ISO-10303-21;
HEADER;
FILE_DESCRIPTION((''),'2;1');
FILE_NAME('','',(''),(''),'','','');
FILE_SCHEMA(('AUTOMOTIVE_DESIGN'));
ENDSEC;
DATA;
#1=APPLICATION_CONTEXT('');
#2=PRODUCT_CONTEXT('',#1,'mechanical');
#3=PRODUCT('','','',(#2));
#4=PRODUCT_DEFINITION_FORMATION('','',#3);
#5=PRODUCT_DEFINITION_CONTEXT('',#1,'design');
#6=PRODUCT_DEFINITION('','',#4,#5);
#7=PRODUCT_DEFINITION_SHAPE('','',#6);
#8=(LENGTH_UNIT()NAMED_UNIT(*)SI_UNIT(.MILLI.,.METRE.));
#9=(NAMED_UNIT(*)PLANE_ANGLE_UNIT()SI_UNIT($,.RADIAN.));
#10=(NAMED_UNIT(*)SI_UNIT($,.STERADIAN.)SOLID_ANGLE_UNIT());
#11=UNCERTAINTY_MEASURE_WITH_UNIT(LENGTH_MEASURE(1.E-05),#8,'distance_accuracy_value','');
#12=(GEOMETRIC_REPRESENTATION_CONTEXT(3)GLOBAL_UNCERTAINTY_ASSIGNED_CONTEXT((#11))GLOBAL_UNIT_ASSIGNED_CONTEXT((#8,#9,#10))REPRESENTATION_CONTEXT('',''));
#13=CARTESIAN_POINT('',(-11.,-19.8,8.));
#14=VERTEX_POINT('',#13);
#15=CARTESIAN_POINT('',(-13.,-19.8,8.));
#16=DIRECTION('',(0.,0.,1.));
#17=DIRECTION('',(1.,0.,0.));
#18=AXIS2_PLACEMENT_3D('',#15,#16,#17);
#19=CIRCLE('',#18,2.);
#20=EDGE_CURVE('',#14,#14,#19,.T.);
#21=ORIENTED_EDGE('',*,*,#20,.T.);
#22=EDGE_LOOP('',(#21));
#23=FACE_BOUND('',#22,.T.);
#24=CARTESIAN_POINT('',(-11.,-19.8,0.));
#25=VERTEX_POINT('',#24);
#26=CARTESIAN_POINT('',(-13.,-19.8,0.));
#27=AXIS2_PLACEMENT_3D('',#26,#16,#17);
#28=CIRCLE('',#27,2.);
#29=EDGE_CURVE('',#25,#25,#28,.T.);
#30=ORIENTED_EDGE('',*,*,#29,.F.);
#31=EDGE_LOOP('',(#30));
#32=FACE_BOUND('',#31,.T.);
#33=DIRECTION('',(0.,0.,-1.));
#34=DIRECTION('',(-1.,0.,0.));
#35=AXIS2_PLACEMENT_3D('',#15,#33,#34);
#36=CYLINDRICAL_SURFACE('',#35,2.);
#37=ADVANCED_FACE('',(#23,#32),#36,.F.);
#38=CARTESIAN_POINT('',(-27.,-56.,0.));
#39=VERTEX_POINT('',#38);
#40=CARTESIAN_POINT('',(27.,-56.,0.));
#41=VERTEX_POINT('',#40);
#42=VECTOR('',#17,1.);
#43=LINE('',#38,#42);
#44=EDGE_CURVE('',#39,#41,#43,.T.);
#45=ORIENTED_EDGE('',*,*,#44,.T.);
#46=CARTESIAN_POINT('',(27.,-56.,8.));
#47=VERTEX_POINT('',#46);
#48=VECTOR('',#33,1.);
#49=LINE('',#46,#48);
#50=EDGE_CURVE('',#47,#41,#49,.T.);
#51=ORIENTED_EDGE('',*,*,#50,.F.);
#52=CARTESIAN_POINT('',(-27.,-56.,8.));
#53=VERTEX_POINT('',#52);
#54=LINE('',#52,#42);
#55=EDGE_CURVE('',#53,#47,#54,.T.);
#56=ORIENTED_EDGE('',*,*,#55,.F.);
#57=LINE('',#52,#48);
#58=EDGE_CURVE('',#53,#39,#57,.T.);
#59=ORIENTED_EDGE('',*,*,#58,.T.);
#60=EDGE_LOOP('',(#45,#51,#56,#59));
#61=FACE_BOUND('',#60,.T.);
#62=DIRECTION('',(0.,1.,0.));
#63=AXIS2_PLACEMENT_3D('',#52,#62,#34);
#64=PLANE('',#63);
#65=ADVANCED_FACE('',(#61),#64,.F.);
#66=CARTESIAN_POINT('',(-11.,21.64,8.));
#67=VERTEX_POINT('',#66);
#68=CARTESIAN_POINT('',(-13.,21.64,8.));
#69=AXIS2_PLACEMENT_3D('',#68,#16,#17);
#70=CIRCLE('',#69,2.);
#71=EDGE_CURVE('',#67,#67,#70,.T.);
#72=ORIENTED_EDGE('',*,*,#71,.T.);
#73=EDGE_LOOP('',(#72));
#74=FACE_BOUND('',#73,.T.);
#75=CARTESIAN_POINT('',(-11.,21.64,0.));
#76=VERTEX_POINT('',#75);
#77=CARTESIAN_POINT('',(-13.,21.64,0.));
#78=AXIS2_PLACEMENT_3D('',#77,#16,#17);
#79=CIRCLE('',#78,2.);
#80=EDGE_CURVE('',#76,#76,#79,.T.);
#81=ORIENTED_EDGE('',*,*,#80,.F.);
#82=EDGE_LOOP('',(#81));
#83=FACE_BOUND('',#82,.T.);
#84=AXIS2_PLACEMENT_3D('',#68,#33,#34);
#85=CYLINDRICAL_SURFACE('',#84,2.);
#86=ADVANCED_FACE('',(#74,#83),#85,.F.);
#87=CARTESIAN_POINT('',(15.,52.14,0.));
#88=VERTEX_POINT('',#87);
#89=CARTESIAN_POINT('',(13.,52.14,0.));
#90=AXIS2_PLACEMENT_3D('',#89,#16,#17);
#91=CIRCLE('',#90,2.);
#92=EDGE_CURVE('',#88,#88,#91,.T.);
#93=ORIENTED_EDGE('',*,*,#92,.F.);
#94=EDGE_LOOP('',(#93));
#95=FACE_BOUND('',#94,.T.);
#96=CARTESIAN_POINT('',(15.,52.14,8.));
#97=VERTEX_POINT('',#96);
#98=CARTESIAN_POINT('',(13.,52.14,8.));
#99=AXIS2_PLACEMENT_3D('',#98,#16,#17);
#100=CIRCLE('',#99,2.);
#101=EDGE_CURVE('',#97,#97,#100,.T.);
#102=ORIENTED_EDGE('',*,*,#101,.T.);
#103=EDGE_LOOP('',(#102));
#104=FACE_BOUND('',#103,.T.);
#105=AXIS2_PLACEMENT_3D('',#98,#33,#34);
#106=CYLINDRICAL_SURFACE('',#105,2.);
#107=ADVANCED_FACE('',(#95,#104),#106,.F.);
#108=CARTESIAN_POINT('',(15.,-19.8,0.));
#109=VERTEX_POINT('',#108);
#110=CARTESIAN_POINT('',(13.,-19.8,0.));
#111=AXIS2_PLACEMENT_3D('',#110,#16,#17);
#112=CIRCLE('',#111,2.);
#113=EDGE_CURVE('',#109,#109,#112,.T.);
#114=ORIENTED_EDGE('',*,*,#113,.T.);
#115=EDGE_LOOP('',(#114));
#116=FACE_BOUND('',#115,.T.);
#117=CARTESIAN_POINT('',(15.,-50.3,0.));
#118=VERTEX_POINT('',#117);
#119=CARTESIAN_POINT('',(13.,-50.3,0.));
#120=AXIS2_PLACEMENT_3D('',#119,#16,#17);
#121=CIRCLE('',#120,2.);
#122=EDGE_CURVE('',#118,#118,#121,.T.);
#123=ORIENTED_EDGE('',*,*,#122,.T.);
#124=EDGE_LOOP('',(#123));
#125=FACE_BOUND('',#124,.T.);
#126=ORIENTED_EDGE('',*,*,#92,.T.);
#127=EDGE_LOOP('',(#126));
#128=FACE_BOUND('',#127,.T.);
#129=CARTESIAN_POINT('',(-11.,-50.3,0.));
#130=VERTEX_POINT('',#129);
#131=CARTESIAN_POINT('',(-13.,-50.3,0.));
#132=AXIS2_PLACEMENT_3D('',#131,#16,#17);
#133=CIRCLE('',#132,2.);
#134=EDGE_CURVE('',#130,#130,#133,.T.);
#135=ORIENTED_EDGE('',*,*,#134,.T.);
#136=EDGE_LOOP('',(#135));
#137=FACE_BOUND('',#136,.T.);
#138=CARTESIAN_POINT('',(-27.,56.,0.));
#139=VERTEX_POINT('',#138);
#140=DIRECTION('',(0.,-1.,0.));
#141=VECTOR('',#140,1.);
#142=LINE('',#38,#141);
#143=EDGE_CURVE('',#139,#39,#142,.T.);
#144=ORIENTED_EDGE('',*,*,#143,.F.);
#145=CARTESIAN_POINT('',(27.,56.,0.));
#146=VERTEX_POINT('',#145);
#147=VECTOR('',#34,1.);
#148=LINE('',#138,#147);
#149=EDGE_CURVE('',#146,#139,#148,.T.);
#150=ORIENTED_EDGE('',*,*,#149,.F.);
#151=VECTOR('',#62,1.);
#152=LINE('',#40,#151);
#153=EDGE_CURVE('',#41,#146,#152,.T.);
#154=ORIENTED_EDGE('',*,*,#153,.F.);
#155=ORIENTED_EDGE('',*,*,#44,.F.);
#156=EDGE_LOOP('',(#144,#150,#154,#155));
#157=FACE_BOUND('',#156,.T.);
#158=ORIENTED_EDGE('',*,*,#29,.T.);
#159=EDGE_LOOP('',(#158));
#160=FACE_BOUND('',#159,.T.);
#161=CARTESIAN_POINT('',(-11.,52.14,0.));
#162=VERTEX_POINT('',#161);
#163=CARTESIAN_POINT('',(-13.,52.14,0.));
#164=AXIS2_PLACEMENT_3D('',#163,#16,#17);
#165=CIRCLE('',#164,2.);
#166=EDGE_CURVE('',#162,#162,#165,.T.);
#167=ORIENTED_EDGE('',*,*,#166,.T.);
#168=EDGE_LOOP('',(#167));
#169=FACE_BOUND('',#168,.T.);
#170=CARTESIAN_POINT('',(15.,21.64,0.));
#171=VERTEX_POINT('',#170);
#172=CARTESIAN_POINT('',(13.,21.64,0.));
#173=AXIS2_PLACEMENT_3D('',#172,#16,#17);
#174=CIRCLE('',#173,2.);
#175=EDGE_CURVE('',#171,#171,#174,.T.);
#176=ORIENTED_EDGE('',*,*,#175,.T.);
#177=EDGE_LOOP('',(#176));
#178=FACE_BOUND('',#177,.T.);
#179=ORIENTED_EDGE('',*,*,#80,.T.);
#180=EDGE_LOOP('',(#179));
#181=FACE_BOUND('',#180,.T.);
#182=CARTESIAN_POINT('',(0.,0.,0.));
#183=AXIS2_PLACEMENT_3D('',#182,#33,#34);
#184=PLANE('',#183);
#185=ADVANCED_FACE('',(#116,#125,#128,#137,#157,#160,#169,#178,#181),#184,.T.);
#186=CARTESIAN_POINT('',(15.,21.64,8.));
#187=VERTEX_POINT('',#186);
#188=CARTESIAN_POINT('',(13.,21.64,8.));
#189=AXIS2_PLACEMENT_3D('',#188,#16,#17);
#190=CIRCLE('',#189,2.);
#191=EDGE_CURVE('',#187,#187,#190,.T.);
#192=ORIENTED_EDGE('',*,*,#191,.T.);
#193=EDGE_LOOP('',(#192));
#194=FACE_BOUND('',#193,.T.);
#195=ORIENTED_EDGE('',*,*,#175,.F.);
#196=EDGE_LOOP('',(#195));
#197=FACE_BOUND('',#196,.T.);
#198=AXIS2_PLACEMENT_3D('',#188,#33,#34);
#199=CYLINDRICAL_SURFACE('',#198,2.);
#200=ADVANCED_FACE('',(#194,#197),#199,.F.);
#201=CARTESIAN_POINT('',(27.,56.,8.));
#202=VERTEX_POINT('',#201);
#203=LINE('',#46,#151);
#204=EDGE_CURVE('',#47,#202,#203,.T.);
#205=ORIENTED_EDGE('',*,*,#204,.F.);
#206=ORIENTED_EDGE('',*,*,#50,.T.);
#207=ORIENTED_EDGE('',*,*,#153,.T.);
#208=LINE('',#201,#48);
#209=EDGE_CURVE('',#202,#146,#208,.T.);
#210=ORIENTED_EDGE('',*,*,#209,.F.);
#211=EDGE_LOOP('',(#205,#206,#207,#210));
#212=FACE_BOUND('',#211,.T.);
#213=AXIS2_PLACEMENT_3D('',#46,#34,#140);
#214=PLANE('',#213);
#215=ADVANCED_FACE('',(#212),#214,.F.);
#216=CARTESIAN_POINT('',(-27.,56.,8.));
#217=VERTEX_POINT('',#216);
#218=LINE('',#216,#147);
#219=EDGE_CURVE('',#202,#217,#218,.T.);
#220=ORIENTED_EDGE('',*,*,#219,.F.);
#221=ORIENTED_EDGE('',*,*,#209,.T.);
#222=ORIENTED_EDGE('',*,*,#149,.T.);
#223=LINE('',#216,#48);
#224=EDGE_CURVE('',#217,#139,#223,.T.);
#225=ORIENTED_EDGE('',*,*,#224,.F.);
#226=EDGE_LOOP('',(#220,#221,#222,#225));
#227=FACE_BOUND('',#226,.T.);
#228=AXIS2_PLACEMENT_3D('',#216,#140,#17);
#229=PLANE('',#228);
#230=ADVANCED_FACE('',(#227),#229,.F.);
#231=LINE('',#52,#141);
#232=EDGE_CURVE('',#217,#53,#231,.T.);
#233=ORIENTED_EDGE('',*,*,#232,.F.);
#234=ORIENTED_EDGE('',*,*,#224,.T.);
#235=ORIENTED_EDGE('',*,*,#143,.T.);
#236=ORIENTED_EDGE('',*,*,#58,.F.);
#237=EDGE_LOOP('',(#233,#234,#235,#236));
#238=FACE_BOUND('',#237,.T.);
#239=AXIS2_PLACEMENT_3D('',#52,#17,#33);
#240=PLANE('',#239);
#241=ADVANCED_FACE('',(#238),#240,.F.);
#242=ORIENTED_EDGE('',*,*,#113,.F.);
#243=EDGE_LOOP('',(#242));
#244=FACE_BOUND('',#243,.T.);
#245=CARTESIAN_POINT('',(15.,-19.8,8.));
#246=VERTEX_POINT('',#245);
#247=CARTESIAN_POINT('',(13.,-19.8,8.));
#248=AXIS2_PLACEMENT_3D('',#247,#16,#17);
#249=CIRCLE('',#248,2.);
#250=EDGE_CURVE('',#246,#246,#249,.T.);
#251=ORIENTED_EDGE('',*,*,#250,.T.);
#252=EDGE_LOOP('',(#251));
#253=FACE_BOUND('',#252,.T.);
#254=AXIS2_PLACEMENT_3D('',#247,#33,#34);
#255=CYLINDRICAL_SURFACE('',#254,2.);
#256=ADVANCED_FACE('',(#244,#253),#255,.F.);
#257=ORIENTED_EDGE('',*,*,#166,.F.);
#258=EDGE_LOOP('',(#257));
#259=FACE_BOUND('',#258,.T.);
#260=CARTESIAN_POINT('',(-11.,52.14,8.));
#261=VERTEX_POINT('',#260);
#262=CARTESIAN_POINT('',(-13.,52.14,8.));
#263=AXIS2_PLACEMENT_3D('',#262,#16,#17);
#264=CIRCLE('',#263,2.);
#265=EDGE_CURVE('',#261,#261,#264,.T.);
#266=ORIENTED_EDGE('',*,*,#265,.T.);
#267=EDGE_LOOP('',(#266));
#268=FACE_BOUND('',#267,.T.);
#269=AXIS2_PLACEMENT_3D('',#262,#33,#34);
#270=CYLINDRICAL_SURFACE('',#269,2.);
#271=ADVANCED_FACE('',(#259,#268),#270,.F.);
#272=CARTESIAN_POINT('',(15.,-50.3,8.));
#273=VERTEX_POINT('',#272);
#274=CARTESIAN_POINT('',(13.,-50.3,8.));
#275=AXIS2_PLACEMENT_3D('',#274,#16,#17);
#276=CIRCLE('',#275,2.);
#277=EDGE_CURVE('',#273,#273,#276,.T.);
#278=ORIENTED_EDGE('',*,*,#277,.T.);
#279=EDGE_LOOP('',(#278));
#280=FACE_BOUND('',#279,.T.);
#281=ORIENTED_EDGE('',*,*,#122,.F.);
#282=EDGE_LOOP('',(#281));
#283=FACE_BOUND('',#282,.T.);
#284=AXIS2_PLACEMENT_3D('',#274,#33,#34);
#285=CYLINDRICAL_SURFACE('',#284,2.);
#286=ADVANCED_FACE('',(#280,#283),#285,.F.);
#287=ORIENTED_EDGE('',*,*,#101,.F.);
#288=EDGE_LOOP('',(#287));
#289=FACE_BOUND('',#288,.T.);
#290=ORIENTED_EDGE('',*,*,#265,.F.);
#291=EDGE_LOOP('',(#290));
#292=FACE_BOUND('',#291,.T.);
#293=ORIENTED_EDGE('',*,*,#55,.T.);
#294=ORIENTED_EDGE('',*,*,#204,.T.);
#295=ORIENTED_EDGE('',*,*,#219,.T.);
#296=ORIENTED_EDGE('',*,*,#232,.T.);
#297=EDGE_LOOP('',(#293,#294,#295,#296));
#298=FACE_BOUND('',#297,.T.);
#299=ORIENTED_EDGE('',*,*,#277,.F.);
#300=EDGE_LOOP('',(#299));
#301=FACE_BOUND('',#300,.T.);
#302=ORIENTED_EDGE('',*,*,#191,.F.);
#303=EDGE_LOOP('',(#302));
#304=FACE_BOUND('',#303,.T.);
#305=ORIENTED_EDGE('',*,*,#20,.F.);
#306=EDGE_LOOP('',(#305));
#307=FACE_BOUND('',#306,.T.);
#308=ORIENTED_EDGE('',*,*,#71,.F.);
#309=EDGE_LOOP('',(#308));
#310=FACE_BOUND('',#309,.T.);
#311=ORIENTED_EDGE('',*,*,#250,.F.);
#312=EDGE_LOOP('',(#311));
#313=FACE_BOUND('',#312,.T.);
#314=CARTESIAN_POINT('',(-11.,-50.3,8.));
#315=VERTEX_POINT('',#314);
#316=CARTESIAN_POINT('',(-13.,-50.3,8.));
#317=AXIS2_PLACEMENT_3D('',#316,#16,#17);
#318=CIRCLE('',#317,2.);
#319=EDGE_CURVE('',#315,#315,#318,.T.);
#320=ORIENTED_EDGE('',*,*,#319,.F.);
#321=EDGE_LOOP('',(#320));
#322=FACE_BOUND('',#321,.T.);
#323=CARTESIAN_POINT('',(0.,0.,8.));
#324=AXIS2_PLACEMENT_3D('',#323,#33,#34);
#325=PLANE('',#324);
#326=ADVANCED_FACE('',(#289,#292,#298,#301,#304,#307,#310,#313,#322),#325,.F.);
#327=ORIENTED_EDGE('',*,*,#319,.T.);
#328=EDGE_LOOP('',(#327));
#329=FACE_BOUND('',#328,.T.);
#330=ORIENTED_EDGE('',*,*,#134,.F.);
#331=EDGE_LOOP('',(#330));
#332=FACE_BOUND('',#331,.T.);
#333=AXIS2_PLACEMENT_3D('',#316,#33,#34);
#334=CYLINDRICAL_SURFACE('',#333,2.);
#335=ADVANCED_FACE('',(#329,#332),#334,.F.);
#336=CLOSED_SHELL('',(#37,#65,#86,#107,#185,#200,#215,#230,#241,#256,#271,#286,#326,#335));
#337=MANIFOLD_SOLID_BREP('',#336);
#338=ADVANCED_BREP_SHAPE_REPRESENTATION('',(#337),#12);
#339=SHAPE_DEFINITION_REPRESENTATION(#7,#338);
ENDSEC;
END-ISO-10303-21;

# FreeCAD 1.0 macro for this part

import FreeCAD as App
import Part
import Sketcher

V = App.Vector


def add_polygon(sketch, points):
    """Adds a closed chain of lines whose ends are joined by coincident constraints."""
    first, n = sketch.GeometryCount, len(points)
    for a, b in zip(points, points[1:] + points[:1]):
        sketch.addGeometry(Part.LineSegment(App.Vector(*a, 0), App.Vector(*b, 0)), False)
    for i in range(n):
        sketch.addConstraint(Sketcher.Constraint("Coincident", first + i, 2, first + (i + 1) % n, 1))

doc = App.newDocument("Part")
params = doc.addObject("Spreadsheet::Sheet", "Params")
for row, (alias, value) in enumerate([
    ("sketch1_diameter", "4 mm"),
    ("sketch1_width", "54 mm"),
    ("sketch1_height", "112 mm"),
    ("pad1_length", "8 mm"),
], start=1):
    params.set(f"A{row}", alias)
    params.set(f"B{row}", "=" + value)
    params.setAlias(f"B{row}", alias)

body = doc.addObject("PartDesign::Body", "Body")

sketch1 = body.newObject("Sketcher::SketchObject", "Sketch")
sketch1.AttachmentSupport = (doc.getObject("XY_Plane"), [""])
sketch1.MapMode = "FlatFace"
add_polygon(sketch1, [(-27, 56), (-27, -56), (27, -56), (27, 56)])
sketch1.addGeometry(Part.Circle(V(-13, -50.3, 0), V(0, 0, 1), 2), False)
sketch1.addGeometry(Part.Circle(V(-13, -19.8, 0), V(0, 0, 1), 2), False)
sketch1.addGeometry(Part.Circle(V(13, -50.3, 0), V(0, 0, 1), 2), False)
sketch1.addGeometry(Part.Circle(V(13, -19.8, 0), V(0, 0, 1), 2), False)
sketch1.addGeometry(Part.Circle(V(-13, 21.6, 0), V(0, 0, 1), 2), False)
sketch1.addGeometry(Part.Circle(V(-13, 52.1, 0), V(0, 0, 1), 2), False)
sketch1.addGeometry(Part.Circle(V(13, 21.6, 0), V(0, 0, 1), 2), False)
sketch1.addGeometry(Part.Circle(V(13, 52.1, 0), V(0, 0, 1), 2), False)
sketch1.addConstraint([
    Sketcher.Constraint("Vertical", 0),
    Sketcher.Constraint("Horizontal", 1),
    Sketcher.Constraint("Vertical", 2),
    Sketcher.Constraint("Horizontal", 3),
    Sketcher.Constraint("Equal", 4, 5),
    Sketcher.Constraint("Equal", 5, 6),
    Sketcher.Constraint("Equal", 6, 7),
    Sketcher.Constraint("Equal", 7, 8),
    Sketcher.Constraint("Equal", 8, 9),
    Sketcher.Constraint("Equal", 9, 10),
    Sketcher.Constraint("Equal", 10, 11),
    Sketcher.Constraint("Symmetric", 0, 2, 2, 2, -1, 1),
    Sketcher.Constraint("Symmetric", 4, 3, 6, 3, -2),
    Sketcher.Constraint("Symmetric", 5, 3, 7, 3, -2),
    Sketcher.Constraint("Symmetric", 8, 3, 10, 3, -2),
    Sketcher.Constraint("Symmetric", 9, 3, 11, 3, -2),
    Sketcher.Constraint("Vertical", 4, 3, 5, 3),
    Sketcher.Constraint("Vertical", 5, 3, 8, 3),
    Sketcher.Constraint("Vertical", 8, 3, 9, 3),
    Sketcher.Constraint("Diameter", 4, 4.0),
    Sketcher.Constraint("DistanceX", 1, 1, 1, 2, 54.0),
    Sketcher.Constraint("DistanceY", 0, 2, 0, 1, 112.0),
    Sketcher.Constraint("DistanceX", 4, 3, -1, 1, 13.0),
    Sketcher.Constraint("DistanceY", 4, 3, -1, 1, 50.3),
    Sketcher.Constraint("DistanceY", 5, 3, -1, 1, 19.8),
    Sketcher.Constraint("DistanceY", 8, 3, 9, 3, 30.5),
    Sketcher.Constraint("DistanceY", -1, 1, 8, 3, 21.64),
])
sketch1.setExpression("Constraints[23]", "Params.sketch1_diameter")
sketch1.setExpression("Constraints[24]", "Params.sketch1_width")
sketch1.setExpression("Constraints[25]", "Params.sketch1_height")
pad1 = body.newObject("PartDesign::Pad", "Pad")
pad1.Profile = sketch1
pad1.setExpression("Length", "Params.pad1_length")

doc.recompute()
